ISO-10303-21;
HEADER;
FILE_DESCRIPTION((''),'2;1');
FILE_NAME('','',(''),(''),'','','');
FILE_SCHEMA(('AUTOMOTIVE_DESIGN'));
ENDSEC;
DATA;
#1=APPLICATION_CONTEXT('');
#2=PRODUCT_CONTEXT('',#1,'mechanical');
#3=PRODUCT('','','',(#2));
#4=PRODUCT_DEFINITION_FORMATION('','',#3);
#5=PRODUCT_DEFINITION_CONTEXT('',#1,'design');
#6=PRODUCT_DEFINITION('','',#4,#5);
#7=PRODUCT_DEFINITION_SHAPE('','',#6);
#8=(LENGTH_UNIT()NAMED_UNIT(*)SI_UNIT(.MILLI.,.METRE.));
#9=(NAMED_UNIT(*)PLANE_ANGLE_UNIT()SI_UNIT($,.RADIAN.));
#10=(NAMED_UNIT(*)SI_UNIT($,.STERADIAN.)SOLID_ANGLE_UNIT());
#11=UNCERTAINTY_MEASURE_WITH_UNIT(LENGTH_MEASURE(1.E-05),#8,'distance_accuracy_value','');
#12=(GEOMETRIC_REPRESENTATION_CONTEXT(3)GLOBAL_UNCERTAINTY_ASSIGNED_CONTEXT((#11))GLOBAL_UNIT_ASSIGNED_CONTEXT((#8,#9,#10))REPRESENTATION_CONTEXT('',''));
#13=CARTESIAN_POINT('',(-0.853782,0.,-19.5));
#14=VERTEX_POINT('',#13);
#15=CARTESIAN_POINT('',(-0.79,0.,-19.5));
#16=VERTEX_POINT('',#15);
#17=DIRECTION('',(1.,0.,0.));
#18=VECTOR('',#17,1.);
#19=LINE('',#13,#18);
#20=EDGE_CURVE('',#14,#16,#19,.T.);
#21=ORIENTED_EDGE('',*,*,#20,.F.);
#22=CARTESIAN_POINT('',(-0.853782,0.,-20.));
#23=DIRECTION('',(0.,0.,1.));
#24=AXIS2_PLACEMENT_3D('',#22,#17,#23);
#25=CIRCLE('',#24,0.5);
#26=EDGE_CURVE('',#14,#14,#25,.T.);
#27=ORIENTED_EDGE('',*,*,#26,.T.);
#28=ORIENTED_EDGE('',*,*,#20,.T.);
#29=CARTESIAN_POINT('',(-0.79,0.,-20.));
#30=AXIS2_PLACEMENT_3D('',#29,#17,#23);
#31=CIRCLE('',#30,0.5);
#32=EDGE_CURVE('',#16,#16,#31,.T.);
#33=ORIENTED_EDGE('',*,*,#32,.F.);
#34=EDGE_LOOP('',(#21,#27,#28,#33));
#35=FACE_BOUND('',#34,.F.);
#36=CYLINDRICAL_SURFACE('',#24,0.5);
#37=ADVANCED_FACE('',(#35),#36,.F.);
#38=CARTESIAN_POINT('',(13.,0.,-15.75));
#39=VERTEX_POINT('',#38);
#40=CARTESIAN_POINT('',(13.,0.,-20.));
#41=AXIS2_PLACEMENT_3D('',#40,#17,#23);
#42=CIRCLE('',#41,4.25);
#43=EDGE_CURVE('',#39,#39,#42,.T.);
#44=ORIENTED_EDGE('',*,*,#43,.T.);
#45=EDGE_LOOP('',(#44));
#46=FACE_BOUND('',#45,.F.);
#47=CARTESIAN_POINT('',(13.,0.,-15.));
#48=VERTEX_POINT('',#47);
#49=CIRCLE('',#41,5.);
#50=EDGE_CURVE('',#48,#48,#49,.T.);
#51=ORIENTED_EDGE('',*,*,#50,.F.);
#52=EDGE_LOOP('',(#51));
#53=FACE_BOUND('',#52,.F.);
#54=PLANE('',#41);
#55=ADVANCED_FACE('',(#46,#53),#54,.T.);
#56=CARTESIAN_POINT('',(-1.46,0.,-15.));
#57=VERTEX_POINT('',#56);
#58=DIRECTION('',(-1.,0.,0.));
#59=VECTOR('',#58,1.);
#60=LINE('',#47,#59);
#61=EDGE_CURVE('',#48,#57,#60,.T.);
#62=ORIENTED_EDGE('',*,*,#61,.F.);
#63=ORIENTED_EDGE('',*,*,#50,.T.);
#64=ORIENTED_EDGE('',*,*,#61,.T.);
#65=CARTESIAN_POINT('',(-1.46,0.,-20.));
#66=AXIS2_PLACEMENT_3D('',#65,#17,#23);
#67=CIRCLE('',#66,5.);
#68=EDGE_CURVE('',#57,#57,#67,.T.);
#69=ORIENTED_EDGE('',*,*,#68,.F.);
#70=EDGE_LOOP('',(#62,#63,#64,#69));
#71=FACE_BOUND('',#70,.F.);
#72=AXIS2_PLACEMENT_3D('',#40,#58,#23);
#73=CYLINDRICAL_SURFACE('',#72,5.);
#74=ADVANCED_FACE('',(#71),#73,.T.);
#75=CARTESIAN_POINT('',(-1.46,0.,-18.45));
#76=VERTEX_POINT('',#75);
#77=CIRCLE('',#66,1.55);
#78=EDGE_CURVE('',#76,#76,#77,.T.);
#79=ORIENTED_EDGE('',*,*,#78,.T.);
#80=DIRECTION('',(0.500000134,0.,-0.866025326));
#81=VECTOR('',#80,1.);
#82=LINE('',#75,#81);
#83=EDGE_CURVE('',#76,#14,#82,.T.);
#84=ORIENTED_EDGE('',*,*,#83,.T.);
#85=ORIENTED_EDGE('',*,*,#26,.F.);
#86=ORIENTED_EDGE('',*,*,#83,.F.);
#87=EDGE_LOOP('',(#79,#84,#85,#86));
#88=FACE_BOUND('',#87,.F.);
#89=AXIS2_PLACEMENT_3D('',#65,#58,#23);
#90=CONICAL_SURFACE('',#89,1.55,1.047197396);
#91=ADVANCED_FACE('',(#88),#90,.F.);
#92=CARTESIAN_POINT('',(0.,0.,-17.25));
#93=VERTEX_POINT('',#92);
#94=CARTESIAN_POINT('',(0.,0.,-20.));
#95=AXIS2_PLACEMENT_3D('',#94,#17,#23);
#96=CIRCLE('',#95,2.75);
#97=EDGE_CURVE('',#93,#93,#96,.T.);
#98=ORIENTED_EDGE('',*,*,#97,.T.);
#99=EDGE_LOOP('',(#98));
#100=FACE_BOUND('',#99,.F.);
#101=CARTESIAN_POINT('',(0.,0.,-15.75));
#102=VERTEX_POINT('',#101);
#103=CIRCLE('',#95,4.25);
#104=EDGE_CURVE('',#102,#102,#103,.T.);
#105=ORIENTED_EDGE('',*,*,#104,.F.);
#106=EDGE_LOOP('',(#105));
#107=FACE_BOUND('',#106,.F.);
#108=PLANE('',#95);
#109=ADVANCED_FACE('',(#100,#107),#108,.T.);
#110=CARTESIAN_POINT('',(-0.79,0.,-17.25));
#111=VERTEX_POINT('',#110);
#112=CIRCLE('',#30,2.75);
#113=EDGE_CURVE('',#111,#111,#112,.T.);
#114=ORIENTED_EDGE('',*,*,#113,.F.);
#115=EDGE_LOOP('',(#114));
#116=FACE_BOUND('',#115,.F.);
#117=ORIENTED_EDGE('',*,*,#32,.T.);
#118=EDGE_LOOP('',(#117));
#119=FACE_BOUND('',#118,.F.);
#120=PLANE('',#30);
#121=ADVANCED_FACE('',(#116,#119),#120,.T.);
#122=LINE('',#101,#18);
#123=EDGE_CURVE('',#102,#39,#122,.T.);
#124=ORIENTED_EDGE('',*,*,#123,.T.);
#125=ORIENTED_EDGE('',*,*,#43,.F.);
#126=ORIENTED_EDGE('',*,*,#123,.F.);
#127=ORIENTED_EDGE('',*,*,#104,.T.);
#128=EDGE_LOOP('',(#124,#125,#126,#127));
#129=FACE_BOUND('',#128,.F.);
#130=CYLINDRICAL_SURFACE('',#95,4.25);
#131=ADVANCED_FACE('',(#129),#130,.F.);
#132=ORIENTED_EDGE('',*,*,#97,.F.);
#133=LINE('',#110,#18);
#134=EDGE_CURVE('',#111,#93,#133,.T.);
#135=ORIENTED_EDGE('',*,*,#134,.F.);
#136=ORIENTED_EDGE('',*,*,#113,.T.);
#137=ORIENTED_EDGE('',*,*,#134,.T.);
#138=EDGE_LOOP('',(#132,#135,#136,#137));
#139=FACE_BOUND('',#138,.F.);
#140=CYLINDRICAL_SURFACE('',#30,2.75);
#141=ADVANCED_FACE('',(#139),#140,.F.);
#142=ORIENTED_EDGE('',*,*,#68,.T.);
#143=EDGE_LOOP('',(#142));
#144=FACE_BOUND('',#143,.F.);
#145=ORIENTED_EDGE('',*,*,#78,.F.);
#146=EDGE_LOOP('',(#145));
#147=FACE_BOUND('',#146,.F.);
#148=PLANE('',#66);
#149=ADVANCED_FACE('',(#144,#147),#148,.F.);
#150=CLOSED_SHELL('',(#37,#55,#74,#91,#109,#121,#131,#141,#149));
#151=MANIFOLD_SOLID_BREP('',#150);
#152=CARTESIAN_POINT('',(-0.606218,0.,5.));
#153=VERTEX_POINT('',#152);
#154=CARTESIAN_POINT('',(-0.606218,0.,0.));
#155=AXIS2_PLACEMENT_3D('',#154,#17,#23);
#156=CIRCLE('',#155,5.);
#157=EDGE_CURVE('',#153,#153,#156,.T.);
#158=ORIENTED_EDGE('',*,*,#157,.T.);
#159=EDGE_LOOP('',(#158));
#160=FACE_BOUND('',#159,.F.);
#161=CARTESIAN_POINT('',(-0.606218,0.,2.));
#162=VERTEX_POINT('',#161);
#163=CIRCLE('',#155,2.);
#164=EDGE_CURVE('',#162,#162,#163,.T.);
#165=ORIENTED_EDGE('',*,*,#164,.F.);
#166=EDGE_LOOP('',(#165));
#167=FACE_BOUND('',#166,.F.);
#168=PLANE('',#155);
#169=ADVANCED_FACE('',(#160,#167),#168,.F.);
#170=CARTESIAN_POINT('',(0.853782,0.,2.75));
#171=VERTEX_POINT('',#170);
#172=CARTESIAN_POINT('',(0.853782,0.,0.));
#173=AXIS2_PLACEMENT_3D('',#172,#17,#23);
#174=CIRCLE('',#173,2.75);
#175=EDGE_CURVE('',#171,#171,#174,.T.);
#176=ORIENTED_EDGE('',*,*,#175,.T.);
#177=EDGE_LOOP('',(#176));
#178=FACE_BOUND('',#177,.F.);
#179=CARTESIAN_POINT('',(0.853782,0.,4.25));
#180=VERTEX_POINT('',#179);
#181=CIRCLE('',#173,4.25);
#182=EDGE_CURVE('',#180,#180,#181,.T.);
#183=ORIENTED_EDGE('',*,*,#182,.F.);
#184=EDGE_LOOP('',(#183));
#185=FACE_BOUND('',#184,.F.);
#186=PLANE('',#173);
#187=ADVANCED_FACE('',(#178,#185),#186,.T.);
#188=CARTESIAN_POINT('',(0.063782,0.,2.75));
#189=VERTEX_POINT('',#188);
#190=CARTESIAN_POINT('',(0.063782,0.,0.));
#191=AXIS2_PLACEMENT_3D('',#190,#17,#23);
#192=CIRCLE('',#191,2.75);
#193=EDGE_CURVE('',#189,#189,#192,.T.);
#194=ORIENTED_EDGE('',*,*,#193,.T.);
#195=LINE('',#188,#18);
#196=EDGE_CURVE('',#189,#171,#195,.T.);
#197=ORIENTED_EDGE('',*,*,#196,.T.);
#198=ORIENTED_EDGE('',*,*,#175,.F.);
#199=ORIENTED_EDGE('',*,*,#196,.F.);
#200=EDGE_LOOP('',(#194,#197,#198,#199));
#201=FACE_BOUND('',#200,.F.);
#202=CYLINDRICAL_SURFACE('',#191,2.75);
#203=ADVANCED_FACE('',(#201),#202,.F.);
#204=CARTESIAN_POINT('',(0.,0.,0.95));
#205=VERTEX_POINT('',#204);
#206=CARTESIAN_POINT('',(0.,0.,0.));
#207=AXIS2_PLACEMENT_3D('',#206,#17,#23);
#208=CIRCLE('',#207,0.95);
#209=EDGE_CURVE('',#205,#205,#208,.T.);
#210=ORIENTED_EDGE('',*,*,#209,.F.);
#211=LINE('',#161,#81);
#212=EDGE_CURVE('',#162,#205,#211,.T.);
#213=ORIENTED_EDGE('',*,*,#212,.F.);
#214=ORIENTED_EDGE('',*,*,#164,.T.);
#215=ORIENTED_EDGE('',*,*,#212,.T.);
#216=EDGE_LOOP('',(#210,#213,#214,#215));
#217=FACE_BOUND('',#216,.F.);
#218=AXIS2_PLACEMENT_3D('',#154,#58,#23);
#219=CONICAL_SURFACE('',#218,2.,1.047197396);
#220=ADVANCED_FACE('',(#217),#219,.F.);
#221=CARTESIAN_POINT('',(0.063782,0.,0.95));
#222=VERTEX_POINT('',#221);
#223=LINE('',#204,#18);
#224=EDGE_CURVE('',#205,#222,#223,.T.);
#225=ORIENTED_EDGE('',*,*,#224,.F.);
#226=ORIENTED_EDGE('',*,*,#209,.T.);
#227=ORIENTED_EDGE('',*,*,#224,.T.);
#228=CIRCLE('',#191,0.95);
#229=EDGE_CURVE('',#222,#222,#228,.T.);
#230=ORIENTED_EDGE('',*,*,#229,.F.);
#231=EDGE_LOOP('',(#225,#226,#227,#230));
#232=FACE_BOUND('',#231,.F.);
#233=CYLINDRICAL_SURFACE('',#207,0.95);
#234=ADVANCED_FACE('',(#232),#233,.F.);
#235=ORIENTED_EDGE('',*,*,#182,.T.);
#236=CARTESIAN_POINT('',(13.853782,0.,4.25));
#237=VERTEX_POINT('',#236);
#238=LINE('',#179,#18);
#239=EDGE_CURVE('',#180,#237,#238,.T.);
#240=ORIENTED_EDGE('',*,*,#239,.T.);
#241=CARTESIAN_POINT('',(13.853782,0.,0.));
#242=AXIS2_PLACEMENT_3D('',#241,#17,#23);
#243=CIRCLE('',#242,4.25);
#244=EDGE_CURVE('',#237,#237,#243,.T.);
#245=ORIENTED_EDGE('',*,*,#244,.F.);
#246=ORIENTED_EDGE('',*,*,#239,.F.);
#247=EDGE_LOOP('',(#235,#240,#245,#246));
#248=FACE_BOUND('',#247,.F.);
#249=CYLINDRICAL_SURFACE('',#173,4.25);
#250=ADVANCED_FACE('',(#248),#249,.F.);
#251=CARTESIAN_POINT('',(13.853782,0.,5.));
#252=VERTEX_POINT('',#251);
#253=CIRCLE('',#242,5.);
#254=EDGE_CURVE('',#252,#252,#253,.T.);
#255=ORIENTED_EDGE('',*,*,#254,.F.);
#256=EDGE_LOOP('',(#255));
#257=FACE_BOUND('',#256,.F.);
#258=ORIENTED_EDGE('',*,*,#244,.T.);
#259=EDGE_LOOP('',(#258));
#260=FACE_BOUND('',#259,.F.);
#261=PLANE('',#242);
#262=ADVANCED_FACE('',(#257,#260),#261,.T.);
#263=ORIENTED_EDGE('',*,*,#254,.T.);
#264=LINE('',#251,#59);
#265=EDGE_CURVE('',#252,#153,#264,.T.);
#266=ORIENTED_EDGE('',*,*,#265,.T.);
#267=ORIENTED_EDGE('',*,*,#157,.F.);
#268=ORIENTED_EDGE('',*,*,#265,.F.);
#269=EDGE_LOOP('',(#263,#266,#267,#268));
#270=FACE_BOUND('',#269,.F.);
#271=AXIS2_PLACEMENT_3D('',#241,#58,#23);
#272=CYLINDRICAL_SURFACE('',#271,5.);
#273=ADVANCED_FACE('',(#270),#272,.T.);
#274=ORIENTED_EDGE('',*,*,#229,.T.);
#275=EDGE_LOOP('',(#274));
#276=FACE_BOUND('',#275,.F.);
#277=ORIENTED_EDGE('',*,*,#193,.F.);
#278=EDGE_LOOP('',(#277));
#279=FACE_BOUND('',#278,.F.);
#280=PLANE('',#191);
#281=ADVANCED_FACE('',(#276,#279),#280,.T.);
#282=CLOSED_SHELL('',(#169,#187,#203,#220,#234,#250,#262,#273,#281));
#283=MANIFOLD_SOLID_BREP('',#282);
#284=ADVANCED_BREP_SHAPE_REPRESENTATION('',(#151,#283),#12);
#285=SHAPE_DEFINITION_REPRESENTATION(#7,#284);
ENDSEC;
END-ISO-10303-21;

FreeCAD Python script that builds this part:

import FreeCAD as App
import Part
import Sketcher
from FreeCAD import Vector
Q = App.Units.Quantity

doc = App.newDocument("Part")
body = doc.addObject("PartDesign::Body", "Body")

sketch1 = body.newObject("Sketcher::SketchObject", "Sketch")
sketch1.AttachmentSupport = (doc.getObject("XZ_Plane"), [""])
sketch1.MapMode = "FlatFace"
sketch1.addGeometry([
    Part.LineSegment(Vector(-0.606218, 2, 0), Vector(0, 0.95, 0)),
    Part.LineSegment(Vector(0, 0.95, 0), Vector(0.063782, 0.95, 0)),
    Part.LineSegment(Vector(0.063782, 0.95, 0), Vector(0.063782, 2.75, 0)),
    Part.LineSegment(Vector(0.063782, 2.75, 0), Vector(0.853782, 2.75, 0)),
    Part.LineSegment(Vector(0.853782, 2.75, 0), Vector(0.853782, 4.25, 0)),
    Part.LineSegment(Vector(0.853782, 4.25, 0), Vector(13.853782, 4.25, 0)),
    Part.LineSegment(Vector(13.853782, 4.25, 0), Vector(13.853782, 5, 0)),
    Part.LineSegment(Vector(13.853782, 5, 0), Vector(-0.606218, 5, 0)),
    Part.LineSegment(Vector(-0.606218, 5, 0), Vector(-0.606218, 2, 0)),
], False)
sketch1.addConstraint([
    Sketcher.Constraint("Coincident", 0, 2, 1, 1),
    Sketcher.Constraint("Coincident", 1, 2, 2, 1),
    Sketcher.Constraint("Coincident", 2, 2, 3, 1),
    Sketcher.Constraint("Coincident", 3, 2, 4, 1),
    Sketcher.Constraint("Coincident", 4, 2, 5, 1),
    Sketcher.Constraint("Coincident", 5, 2, 6, 1),
    Sketcher.Constraint("Coincident", 6, 2, 7, 1),
    Sketcher.Constraint("Coincident", 7, 2, 8, 1),
    Sketcher.Constraint("Coincident", 8, 2, 0, 1),
    Sketcher.Constraint("Horizontal", 1),
    Sketcher.Constraint("Vertical", 2),
    Sketcher.Constraint("Horizontal", 3),
    Sketcher.Constraint("Vertical", 4),
    Sketcher.Constraint("Horizontal", 5),
    Sketcher.Constraint("Vertical", 6),
    Sketcher.Constraint("Horizontal", 7),
    Sketcher.Constraint("Vertical", 8),
    Sketcher.Constraint("PointOnObject", 0, 2, -2),
    Sketcher.Constraint("DistanceX", 5, 1, 5, 2, 13.0),
    Sketcher.Constraint("DistanceY", 8, 2, 8, 1, 3.0),
    Sketcher.Constraint("Angle", 0, Q("-59.999991 deg")),
    Sketcher.Constraint("DistanceY", 2, 1, 2, 2, 1.8),
    Sketcher.Constraint("DistanceY", 4, 1, 4, 2, 1.5),
    Sketcher.Constraint("DistanceY", -1, 1, 6, 2, 5.0),
    Sketcher.Constraint("DistanceX", 3, 1, 3, 2, 0.79),
    Sketcher.Constraint("DistanceX", 7, 2, 7, 1, 14.46),
    Sketcher.Constraint("DistanceY", 6, 1, 6, 2, 0.75),
])
revolution = body.newObject("PartDesign::Revolution", "Revolution")
revolution.Profile = sketch1
revolution.ReferenceAxis = (sketch1, ["H_Axis"])
revolution.Angle = 360
body2 = doc.addObject("PartDesign::Body", "Body001")

sketch2 = body2.newObject("Sketcher::SketchObject", "Sketch001")
sketch2.AttachmentSupport = (doc.getObject("XZ_Plane001"), [""])
sketch2.MapMode = "FlatFace"
sketch2.addGeometry([
    Part.LineSegment(Vector(-1.46, -18.45, 0), Vector(-0.853782, -19.5, 0)),
    Part.LineSegment(Vector(-0.853782, -19.5, 0), Vector(-0.79, -19.5, 0)),
    Part.LineSegment(Vector(-0.79, -19.5, 0), Vector(-0.79, -17.25, 0)),
    Part.LineSegment(Vector(-0.79, -17.25, 0), Vector(0, -17.25, 0)),
    Part.LineSegment(Vector(0, -17.25, 0), Vector(0, -15.75, 0)),
    Part.LineSegment(Vector(0, -15.75, 0), Vector(13, -15.75, 0)),
    Part.LineSegment(Vector(13, -15.75, 0), Vector(13, -15, 0)),
    Part.LineSegment(Vector(13, -15, 0), Vector(-1.46, -15, 0)),
    Part.LineSegment(Vector(-1.46, -15, 0), Vector(-1.46, -18.45, 0)),
], False)
sketch2.addGeometry(Part.LineSegment(Vector(-1.46, -20, 0), Vector(13, -20, 0)), True)
sketch2.addConstraint([
    Sketcher.Constraint("Coincident", 0, 2, 1, 1),
    Sketcher.Constraint("Coincident", 1, 2, 2, 1),
    Sketcher.Constraint("Coincident", 2, 2, 3, 1),
    Sketcher.Constraint("Coincident", 3, 2, 4, 1),
    Sketcher.Constraint("Coincident", 4, 2, 5, 1),
    Sketcher.Constraint("Coincident", 5, 2, 6, 1),
    Sketcher.Constraint("Coincident", 6, 2, 7, 1),
    Sketcher.Constraint("Coincident", 7, 2, 8, 1),
    Sketcher.Constraint("Coincident", 8, 2, 0, 1),
    Sketcher.Constraint("Horizontal", 1),
    Sketcher.Constraint("Vertical", 2),
    Sketcher.Constraint("Horizontal", 3),
    Sketcher.Constraint("Vertical", 4),
    Sketcher.Constraint("Horizontal", 5),
    Sketcher.Constraint("Vertical", 6),
    Sketcher.Constraint("Horizontal", 7),
    Sketcher.Constraint("Vertical", 8),
    Sketcher.Constraint("Horizontal", 9),
    Sketcher.Constraint("PointOnObject", 3, 2, -2),
    Sketcher.Constraint("Vertical", 8, 2, 9, 1),
    Sketcher.Constraint("Vertical", 6, 2, 9, 2),
    Sketcher.Constraint("DistanceX", 5, 1, 5, 2, 13.0),
    Sketcher.Constraint("Angle", 0, Q("-59.999991 deg")),
    Sketcher.Constraint("DistanceY", 4, 1, 4, 2, 1.5),
    Sketcher.Constraint("DistanceY", 6, 2, -1, 1, 15.0),
    Sketcher.Constraint("DistanceY", 9, 1, -1, 1, 20.0),
    Sketcher.Constraint("DistanceX", 3, 1, 3, 2, 0.79),
    Sketcher.Constraint("DistanceX", 7, 2, 7, 1, 14.46),
    Sketcher.Constraint("DistanceY", 2, 1, 2, 2, 2.25),
    Sketcher.Constraint("DistanceY", 6, 1, 6, 2, 0.75),
    Sketcher.Constraint("DistanceY", 8, 2, 8, 1, 3.45),
])
revolution2 = body2.newObject("PartDesign::Revolution", "Revolution001")
revolution2.Profile = sketch2
revolution2.ReferenceAxis = (sketch2, ["Axis0"])
revolution2.Angle = 360

doc.recompute()
